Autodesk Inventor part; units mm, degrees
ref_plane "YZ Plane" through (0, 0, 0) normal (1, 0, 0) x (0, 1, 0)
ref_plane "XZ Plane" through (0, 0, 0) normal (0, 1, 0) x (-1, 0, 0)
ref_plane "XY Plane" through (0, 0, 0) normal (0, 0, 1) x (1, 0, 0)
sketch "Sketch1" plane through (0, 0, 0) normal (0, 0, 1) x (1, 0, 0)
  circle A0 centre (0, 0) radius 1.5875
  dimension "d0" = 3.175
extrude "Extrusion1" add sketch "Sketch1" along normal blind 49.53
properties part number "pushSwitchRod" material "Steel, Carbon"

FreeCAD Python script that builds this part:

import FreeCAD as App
import Part
import Sketcher

V = App.Vector
Q = App.Units.Quantity

doc = App.newDocument("Part")
body = doc.addObject("PartDesign::Body", "Body")

# Sketch on XY plane
sketch1 = body.newObject("Sketcher::SketchObject", "Sketch")
sketch1.AttachmentSupport = (doc.getObject("XY_Plane"), [""])
sketch1.MapMode = "FlatFace"
sketch1.addGeometry(Part.Circle(V(0, 0, 0), V(0, 0, 1), 1.6), False)
sketch1.addConstraint(Sketcher.Constraint("Coincident", 0, 3, -1, 1))
sketch1.addConstraint(Sketcher.Constraint("Diameter", 0, Q("0.125 in")))
pad1 = body.newObject("PartDesign::Pad", "Pad")
pad1.Profile = sketch1
pad1.Length = Q("1.95 in")

doc.recompute()
